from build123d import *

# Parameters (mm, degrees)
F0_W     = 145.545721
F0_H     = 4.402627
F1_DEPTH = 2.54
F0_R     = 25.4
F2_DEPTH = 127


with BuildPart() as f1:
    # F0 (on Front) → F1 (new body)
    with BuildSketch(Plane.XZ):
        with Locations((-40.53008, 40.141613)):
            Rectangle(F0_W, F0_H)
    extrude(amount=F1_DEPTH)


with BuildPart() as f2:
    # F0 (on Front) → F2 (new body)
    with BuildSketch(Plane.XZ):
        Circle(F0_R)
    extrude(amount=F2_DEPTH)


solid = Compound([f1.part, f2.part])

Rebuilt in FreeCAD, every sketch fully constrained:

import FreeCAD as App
import Part
import Sketcher
from FreeCAD import Vector
Q = App.Units.Quantity

doc = App.newDocument("Part")
body = doc.addObject("PartDesign::Body", "Body")

# Sketch on XZ plane
sketch1 = body.newObject("Sketcher::SketchObject", "Sketch")
sketch1.AttachmentSupport = (doc.getObject("XZ_Plane"), [""])
sketch1.MapMode = "FlatFace"
sketch1.addGeometry([
    Part.LineSegment(Vector(-113.302941, 42.342926, 0), Vector(-113.302941, 37.9403, 0)),
    Part.LineSegment(Vector(-113.302941, 37.9403, 0), Vector(32.242781, 37.9403, 0)),
    Part.LineSegment(Vector(32.242781, 37.9403, 0), Vector(32.242781, 42.342926, 0)),
    Part.LineSegment(Vector(32.242781, 42.342926, 0), Vector(-113.302941, 42.342926, 0)),
], False)
sketch1.addConstraint([
    Sketcher.Constraint("Coincident", 0, 2, 1, 1),
    Sketcher.Constraint("Coincident", 1, 2, 2, 1),
    Sketcher.Constraint("Coincident", 2, 2, 3, 1),
    Sketcher.Constraint("Coincident", 3, 2, 0, 1),
    Sketcher.Constraint("Vertical", 0),
    Sketcher.Constraint("Horizontal", 1),
    Sketcher.Constraint("Vertical", 2),
    Sketcher.Constraint("Horizontal", 3),
    Sketcher.Constraint("DistanceX", 1, 1, 1, 2, 145.545721),
    Sketcher.Constraint("DistanceY", -1, 1, 0, 2, 37.9403),
    Sketcher.Constraint("DistanceY", 0, 2, 0, 1, 4.402627),
    Sketcher.Constraint("DistanceX", 0, 2, -1, 1, 113.302941),
])
pad1 = body.newObject("PartDesign::Pad", "Pad")
pad1.Profile = sketch1
pad1.Length = Q("0.1 in")
body2 = doc.addObject("PartDesign::Body", "Body001")

# Sketch on XZ plane
sketch2 = body2.newObject("Sketcher::SketchObject", "Sketch001")
sketch2.AttachmentSupport = (doc.getObject("XZ_Plane001"), [""])
sketch2.MapMode = "FlatFace"
sketch2.addGeometry(Part.Circle(Vector(0, 0, 0), Vector(0, 0, 1), 25.4), False)
sketch2.addConstraint([
    Sketcher.Constraint("Coincident", 0, 3, -1, 1),
    Sketcher.Constraint("Diameter", 0, Q("2 in")),
])
pad2 = body2.newObject("PartDesign::Pad", "Pad001")
pad2.Profile = sketch2
pad2.Length = Q("5 in")

doc.recompute()
